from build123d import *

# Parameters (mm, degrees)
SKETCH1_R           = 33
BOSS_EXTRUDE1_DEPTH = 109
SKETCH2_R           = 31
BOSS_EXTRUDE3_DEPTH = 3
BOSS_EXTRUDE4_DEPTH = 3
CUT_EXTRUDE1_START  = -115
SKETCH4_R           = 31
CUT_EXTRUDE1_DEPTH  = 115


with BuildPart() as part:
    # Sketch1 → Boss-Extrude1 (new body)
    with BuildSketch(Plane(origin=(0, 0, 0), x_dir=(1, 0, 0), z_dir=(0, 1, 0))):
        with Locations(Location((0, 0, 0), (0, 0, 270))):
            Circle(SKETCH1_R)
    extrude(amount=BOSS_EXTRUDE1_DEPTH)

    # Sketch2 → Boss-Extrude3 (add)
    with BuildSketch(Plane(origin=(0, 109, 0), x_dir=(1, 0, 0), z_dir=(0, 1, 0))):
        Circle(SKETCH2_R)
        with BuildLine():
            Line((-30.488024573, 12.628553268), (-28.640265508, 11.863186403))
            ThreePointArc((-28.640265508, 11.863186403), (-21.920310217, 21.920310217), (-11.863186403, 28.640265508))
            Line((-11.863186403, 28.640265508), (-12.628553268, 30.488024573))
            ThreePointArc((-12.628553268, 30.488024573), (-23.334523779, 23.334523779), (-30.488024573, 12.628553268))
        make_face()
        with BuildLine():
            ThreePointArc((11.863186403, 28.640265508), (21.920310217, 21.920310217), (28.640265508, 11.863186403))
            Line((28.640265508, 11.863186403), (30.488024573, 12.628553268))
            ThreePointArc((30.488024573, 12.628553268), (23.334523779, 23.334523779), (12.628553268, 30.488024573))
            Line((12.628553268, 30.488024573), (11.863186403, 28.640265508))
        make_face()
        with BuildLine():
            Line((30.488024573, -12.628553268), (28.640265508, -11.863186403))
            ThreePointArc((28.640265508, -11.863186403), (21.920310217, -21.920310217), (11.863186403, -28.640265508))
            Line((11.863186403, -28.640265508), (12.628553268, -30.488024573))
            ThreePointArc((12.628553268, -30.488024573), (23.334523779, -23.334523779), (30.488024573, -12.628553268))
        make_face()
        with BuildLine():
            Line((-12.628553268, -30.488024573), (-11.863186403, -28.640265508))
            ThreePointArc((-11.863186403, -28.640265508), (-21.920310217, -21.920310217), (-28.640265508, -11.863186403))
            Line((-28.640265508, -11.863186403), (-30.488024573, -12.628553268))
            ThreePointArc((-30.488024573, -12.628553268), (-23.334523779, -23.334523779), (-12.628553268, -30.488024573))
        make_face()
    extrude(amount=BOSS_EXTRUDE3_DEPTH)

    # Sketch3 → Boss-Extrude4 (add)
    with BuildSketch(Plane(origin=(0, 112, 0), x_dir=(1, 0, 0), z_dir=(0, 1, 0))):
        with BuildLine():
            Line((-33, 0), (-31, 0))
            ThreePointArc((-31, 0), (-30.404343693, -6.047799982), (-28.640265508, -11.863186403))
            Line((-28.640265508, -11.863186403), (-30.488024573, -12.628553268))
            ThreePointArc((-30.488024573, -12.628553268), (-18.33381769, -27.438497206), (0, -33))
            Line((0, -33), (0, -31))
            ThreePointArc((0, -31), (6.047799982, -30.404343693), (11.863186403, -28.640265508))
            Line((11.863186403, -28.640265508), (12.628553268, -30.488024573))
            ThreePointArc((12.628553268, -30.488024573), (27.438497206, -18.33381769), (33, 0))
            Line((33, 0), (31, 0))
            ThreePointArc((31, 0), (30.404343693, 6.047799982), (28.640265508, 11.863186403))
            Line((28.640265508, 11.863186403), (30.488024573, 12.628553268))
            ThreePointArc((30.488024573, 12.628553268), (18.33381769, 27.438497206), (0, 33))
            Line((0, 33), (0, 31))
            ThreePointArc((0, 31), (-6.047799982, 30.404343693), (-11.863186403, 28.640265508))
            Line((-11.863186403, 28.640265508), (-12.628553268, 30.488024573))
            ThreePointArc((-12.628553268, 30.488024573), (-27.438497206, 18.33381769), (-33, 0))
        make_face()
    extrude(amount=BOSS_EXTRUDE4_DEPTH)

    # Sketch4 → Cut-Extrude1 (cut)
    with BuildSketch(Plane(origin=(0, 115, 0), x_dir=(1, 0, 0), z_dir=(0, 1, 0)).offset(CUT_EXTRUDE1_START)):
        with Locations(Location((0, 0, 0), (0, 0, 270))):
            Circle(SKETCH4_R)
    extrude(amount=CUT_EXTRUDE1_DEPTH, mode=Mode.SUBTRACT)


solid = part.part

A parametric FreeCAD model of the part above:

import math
import FreeCAD as App
import Part
import Sketcher
Q = App.Units.Quantity

doc = App.newDocument("Part")
params = doc.addObject("Spreadsheet::Sheet", "Params")
for row, (alias, value) in enumerate([
    ("sketch1_diameter", "66 mm"),
    ("pad1_length", "109 mm"),
    ("sketch2_radius", "33 mm"),
    ("sketch2_radius2", "31 mm"),
    ("pad2_length", "3 mm"),
    ("sketch3_radius", "31 mm"),
    ("sketch3_radius2", "33 mm"),
    ("pad3_length", "3 mm"),
    ("sketch4_diameter", "62 mm"),
    ("pocket1_length", "115 mm"),
], start=1):
    params.set(f"A{row}", alias)
    params.set(f"B{row}", "=" + value)
    params.setAlias(f"B{row}", alias)

body = doc.addObject("PartDesign::Body", "Body")

sketch1 = body.newObject("Sketcher::SketchObject", "Sketch")
sketch1.AttachmentSupport = (doc.getObject("XZ_Plane"), [""])
sketch1.MapMode = "FlatFace"
sketch1.addGeometry(Part.Circle(App.Vector(0, 0, 0), App.Vector(0, 0, 1), 33), False)
sketch1.addConstraint([
    Sketcher.Constraint("Coincident", 0, 3, -1, 1),
    Sketcher.Constraint("Diameter", 0, Q("66 mm")),
])
sketch1.setExpression("Constraints[1]", "Params.sketch1_diameter")
pad1 = body.newObject("PartDesign::Pad", "Pad")
pad1.Profile = sketch1
pad1.setExpression("Length", "Params.pad1_length")
pad1.Reversed = True

sketch2 = body.newObject("Sketcher::SketchObject", "Sketch001")
sketch2.AttachmentSupport = (doc.getObject("XZ_Plane"), [""])
sketch2.MapMode = "FlatFace"
sketch2.AttachmentOffset = App.Placement(App.Vector(0, 0, -109), App.Rotation())
sketch2.addGeometry([
    Part.LineSegment(App.Vector(-11.9, -28.6, 0), App.Vector(-12.6, -30.5, 0)),
    Part.ArcOfCircle(Part.Circle(App.Vector(0, 0, 0), App.Vector(0, 0, 1), 33), math.radians(-157), math.radians(-113)),
    Part.LineSegment(App.Vector(-30.5, -12.6, 0), App.Vector(-28.6, -11.9, 0)),
    Part.ArcOfCircle(Part.Circle(App.Vector(0, 0, 0), App.Vector(0, 0, 1), 31), math.radians(158), math.radians(202)),
    Part.LineSegment(App.Vector(-28.6, 11.9, 0), App.Vector(-30.5, 12.6, 0)),
    Part.ArcOfCircle(Part.Circle(App.Vector(0, 0, 0), App.Vector(0, 0, 1), 33), math.radians(113), math.radians(157)),
    Part.LineSegment(App.Vector(-12.6, 30.5, 0), App.Vector(-11.9, 28.6, 0)),
    Part.ArcOfCircle(Part.Circle(App.Vector(0, 0, 0), App.Vector(0, 0, 1), 31), math.radians(68), math.radians(112)),
    Part.LineSegment(App.Vector(11.9, 28.6, 0), App.Vector(12.6, 30.5, 0)),
    Part.ArcOfCircle(Part.Circle(App.Vector(0, 0, 0), App.Vector(0, 0, 1), 33), math.radians(23), math.radians(67)),
    Part.LineSegment(App.Vector(30.5, 12.6, 0), App.Vector(28.6, 11.9, 0)),
    Part.ArcOfCircle(Part.Circle(App.Vector(0, 0, 0), App.Vector(0, 0, 1), 31), math.radians(-22), math.radians(22)),
    Part.LineSegment(App.Vector(28.6, -11.9, 0), App.Vector(30.5, -12.6, 0)),
    Part.ArcOfCircle(Part.Circle(App.Vector(0, 0, 0), App.Vector(0, 0, 1), 33), math.radians(-67), math.radians(-23)),
    Part.LineSegment(App.Vector(12.6, -30.5, 0), App.Vector(11.9, -28.6, 0)),
    Part.ArcOfCircle(Part.Circle(App.Vector(0, 0, 0), App.Vector(0, 0, 1), 31), math.radians(-112), math.radians(-68)),
], False)
sketch2.addConstraint([
    Sketcher.Constraint("Coincident", 0, 2, 1, 2),
    Sketcher.Constraint("Coincident", 1, 1, 2, 1),
    Sketcher.Constraint("Coincident", 2, 2, 3, 2),
    Sketcher.Constraint("Coincident", 3, 1, 4, 1),
    Sketcher.Constraint("Coincident", 4, 2, 5, 2),
    Sketcher.Constraint("Coincident", 5, 1, 6, 1),
    Sketcher.Constraint("Coincident", 6, 2, 7, 2),
    Sketcher.Constraint("Coincident", 7, 1, 8, 1),
    Sketcher.Constraint("Coincident", 8, 2, 9, 2),
    Sketcher.Constraint("Coincident", 9, 1, 10, 1),
    Sketcher.Constraint("Coincident", 10, 2, 11, 2),
    Sketcher.Constraint("Coincident", 11, 1, 12, 1),
    Sketcher.Constraint("Coincident", 12, 2, 13, 2),
    Sketcher.Constraint("Coincident", 13, 1, 14, 1),
    Sketcher.Constraint("Coincident", 14, 2, 15, 2),
    Sketcher.Constraint("Coincident", 15, 1, 0, 1),
    Sketcher.Constraint("Coincident", 1, 3, -1, 1),
    Sketcher.Constraint("Coincident", 3, 3, -1, 1),
    Sketcher.Constraint("Coincident", 5, 3, -1, 1),
    Sketcher.Constraint("Coincident", 7, 3, -1, 1),
    Sketcher.Constraint("Coincident", 9, 3, -1, 1),
    Sketcher.Constraint("Coincident", 11, 3, -1, 1),
    Sketcher.Constraint("Coincident", 13, 3, -1, 1),
    Sketcher.Constraint("Coincident", 15, 3, -1, 1),
    Sketcher.Constraint("Equal", 1, 5),
    Sketcher.Constraint("Equal", 3, 7),
    Sketcher.Constraint("Equal", 5, 9),
    Sketcher.Constraint("Equal", 7, 11),
    Sketcher.Constraint("Equal", 9, 13),
    Sketcher.Constraint("Equal", 11, 15),
    Sketcher.Constraint("Perpendicular", 0, 4),
    Sketcher.Constraint("Perpendicular", 2, 6),
    Sketcher.Constraint("Perpendicular", 4, 8),
    Sketcher.Constraint("Perpendicular", 6, 10),
    Sketcher.Constraint("Perpendicular", 8, 12),
    Sketcher.Constraint("Perpendicular", 10, 14),
    Sketcher.Constraint("Horizontal", 6, 2, 7, 1),
    Sketcher.Constraint("Horizontal", 5, 1, 8, 2),
    Sketcher.Constraint("Horizontal", 4, 2, 9, 1),
    Sketcher.Constraint("Horizontal", 2, 2, 11, 1),
    Sketcher.Constraint("Horizontal", 0, 2, 13, 1),
    Sketcher.Constraint("Vertical", 2, 2, 3, 1),
    Sketcher.Constraint("Vertical", 0, 2, 5, 1),
    Sketcher.Constraint("Radius", 1, Q("33 mm")),
    Sketcher.Constraint("Radius", 3, Q("31 mm")),
    Sketcher.Constraint("Angle", 0, Q("-112.5 deg")),
    Sketcher.Constraint("DistanceX", 1, 1, 0, 2, Q("17.859471 mm")),
    Sketcher.Constraint("DistanceY", 0, 2, 1, 1, Q("17.859471 mm")),
])
sketch2.setExpression("Constraints[43]", "Params.sketch2_radius")
sketch2.setExpression("Constraints[44]", "Params.sketch2_radius2")
pad2 = body.newObject("PartDesign::Pad", "Pad001")
pad2.Profile = sketch2
pad2.setExpression("Length", "Params.pad2_length")
pad2.Reversed = True

sketch3 = body.newObject("Sketcher::SketchObject", "Sketch002")
sketch3.AttachmentSupport = (doc.getObject("XZ_Plane"), [""])
sketch3.MapMode = "FlatFace"
sketch3.AttachmentOffset = App.Placement(App.Vector(0, 0, -112), App.Rotation())
sketch3.addGeometry([
    Part.LineSegment(App.Vector(-33, 0, 0), App.Vector(-31, 0, 0)),
    Part.ArcOfCircle(Part.Circle(App.Vector(0, 0, 0), App.Vector(0, 0, 1), 31), math.radians(157), math.radians(180)),
    Part.LineSegment(App.Vector(-28.6, 11.9, 0), App.Vector(-30.5, 12.6, 0)),
    Part.ArcOfCircle(Part.Circle(App.Vector(0, 0, 0), App.Vector(0, 0, 1), 33), math.radians(90), math.radians(158)),
    Part.LineSegment(App.Vector(0, 33, 0), App.Vector(0, 31, 0)),
    Part.ArcOfCircle(Part.Circle(App.Vector(0, 0, 0), App.Vector(0, 0, 1), 31), math.radians(67), math.radians(90)),
    Part.LineSegment(App.Vector(11.9, 28.6, 0), App.Vector(12.6, 30.5, 0)),
    Part.ArcOfCircle(Part.Circle(App.Vector(0, 0, 0), App.Vector(0, 0, 1), 33), math.radians(0), math.radians(68)),
    Part.LineSegment(App.Vector(33, 0, 0), App.Vector(31, 0, 0)),
    Part.ArcOfCircle(Part.Circle(App.Vector(0, 0, 0), App.Vector(0, 0, 1), 31), math.radians(-23), math.radians(0)),
    Part.LineSegment(App.Vector(28.6, -11.9, 0), App.Vector(30.5, -12.6, 0)),
    Part.ArcOfCircle(Part.Circle(App.Vector(0, 0, 0), App.Vector(0, 0, 1), 33), math.radians(-90), math.radians(-22)),
    Part.LineSegment(App.Vector(0, -33, 0), App.Vector(0, -31, 0)),
    Part.ArcOfCircle(Part.Circle(App.Vector(0, 0, 0), App.Vector(0, 0, 1), 31), math.radians(-113), math.radians(-90)),
    Part.LineSegment(App.Vector(-11.9, -28.6, 0), App.Vector(-12.6, -30.5, 0)),
    Part.ArcOfCircle(Part.Circle(App.Vector(0, 0, 0), App.Vector(0, 0, 1), 33), math.radians(180), math.radians(248)),
], False)
sketch3.addConstraint([
    Sketcher.Constraint("Coincident", 0, 2, 1, 2),
    Sketcher.Constraint("Coincident", 1, 1, 2, 1),
    Sketcher.Constraint("Coincident", 2, 2, 3, 2),
    Sketcher.Constraint("Coincident", 3, 1, 4, 1),
    Sketcher.Constraint("Coincident", 4, 2, 5, 2),
    Sketcher.Constraint("Coincident", 5, 1, 6, 1),
    Sketcher.Constraint("Coincident", 6, 2, 7, 2),
    Sketcher.Constraint("Coincident", 7, 1, 8, 1),
    Sketcher.Constraint("Coincident", 8, 2, 9, 2),
    Sketcher.Constraint("Coincident", 9, 1, 10, 1),
    Sketcher.Constraint("Coincident", 10, 2, 11, 2),
    Sketcher.Constraint("Coincident", 11, 1, 12, 1),
    Sketcher.Constraint("Coincident", 12, 2, 13, 2),
    Sketcher.Constraint("Coincident", 13, 1, 14, 1),
    Sketcher.Constraint("Coincident", 14, 2, 15, 2),
    Sketcher.Constraint("Coincident", 15, 1, 0, 1),
    Sketcher.Constraint("Horizontal", 0),
    Sketcher.Constraint("Vertical", 4),
    Sketcher.Constraint("Horizontal", 8),
    Sketcher.Constraint("Vertical", 12),
    Sketcher.Constraint("Coincident", 1, 3, -1, 1),
    Sketcher.Constraint("Coincident", 3, 3, -1, 1),
    Sketcher.Constraint("Coincident", 5, 3, -1, 1),
    Sketcher.Constraint("Coincident", 7, 3, -1, 1),
    Sketcher.Constraint("Coincident", 9, 3, -1, 1),
    Sketcher.Constraint("Coincident", 11, 3, -1, 1),
    Sketcher.Constraint("Coincident", 13, 3, -1, 1),
    Sketcher.Constraint("Coincident", 15, 3, -1, 1),
    Sketcher.Constraint("Equal", 1, 5),
    Sketcher.Constraint("Equal", 3, 7),
    Sketcher.Constraint("Equal", 5, 9),
    Sketcher.Constraint("Equal", 7, 11),
    Sketcher.Constraint("Equal", 9, 13),
    Sketcher.Constraint("Equal", 11, 15),
    Sketcher.Constraint("PointOnObject", 0, 2, -1),
    Sketcher.Constraint("PointOnObject", 3, 1, -2),
    Sketcher.Constraint("PointOnObject", 7, 1, -1),
    Sketcher.Constraint("PointOnObject", 11, 1, -2),
    Sketcher.Constraint("Perpendicular", 2, 6),
    Sketcher.Constraint("Perpendicular", 6, 10),
    Sketcher.Constraint("Perpendicular", 10, 14),
    Sketcher.Constraint("Radius", 1, Q("31 mm")),
    Sketcher.Constraint("Radius", 3, Q("33 mm")),
    Sketcher.Constraint("Angle", 2, Q("157.5 deg")),
    Sketcher.Constraint("DistanceX", 1, 1, -1, 1, Q("28.640266 mm")),
    Sketcher.Constraint("DistanceX", -1, 1, 5, 1, Q("11.863186 mm")),
    Sketcher.Constraint("DistanceX", -1, 1, 9, 1, Q("28.640266 mm")),
    Sketcher.Constraint("DistanceX", 13, 1, -1, 1, Q("11.863186 mm")),
])
sketch3.setExpression("Constraints[41]", "Params.sketch3_radius")
sketch3.setExpression("Constraints[42]", "Params.sketch3_radius2")
pad3 = body.newObject("PartDesign::Pad", "Pad002")
pad3.Profile = sketch3
pad3.setExpression("Length", "Params.pad3_length")
pad3.Reversed = True

sketch4 = body.newObject("Sketcher::SketchObject", "Sketch003")
sketch4.AttachmentSupport = (doc.getObject("XZ_Plane"), [""])
sketch4.MapMode = "FlatFace"
sketch4.addGeometry(Part.Circle(App.Vector(0, 0, 0), App.Vector(0, 0, 1), 31), False)
sketch4.addConstraint([
    Sketcher.Constraint("Coincident", 0, 3, -1, 1),
    Sketcher.Constraint("Diameter", 0, Q("62 mm")),
])
sketch4.setExpression("Constraints[1]", "Params.sketch4_diameter")
pocket1 = body.newObject("PartDesign::Pocket", "Pocket")
pocket1.Profile = sketch4
pocket1.setExpression("Length", "Params.pocket1_length")

doc.recompute()
